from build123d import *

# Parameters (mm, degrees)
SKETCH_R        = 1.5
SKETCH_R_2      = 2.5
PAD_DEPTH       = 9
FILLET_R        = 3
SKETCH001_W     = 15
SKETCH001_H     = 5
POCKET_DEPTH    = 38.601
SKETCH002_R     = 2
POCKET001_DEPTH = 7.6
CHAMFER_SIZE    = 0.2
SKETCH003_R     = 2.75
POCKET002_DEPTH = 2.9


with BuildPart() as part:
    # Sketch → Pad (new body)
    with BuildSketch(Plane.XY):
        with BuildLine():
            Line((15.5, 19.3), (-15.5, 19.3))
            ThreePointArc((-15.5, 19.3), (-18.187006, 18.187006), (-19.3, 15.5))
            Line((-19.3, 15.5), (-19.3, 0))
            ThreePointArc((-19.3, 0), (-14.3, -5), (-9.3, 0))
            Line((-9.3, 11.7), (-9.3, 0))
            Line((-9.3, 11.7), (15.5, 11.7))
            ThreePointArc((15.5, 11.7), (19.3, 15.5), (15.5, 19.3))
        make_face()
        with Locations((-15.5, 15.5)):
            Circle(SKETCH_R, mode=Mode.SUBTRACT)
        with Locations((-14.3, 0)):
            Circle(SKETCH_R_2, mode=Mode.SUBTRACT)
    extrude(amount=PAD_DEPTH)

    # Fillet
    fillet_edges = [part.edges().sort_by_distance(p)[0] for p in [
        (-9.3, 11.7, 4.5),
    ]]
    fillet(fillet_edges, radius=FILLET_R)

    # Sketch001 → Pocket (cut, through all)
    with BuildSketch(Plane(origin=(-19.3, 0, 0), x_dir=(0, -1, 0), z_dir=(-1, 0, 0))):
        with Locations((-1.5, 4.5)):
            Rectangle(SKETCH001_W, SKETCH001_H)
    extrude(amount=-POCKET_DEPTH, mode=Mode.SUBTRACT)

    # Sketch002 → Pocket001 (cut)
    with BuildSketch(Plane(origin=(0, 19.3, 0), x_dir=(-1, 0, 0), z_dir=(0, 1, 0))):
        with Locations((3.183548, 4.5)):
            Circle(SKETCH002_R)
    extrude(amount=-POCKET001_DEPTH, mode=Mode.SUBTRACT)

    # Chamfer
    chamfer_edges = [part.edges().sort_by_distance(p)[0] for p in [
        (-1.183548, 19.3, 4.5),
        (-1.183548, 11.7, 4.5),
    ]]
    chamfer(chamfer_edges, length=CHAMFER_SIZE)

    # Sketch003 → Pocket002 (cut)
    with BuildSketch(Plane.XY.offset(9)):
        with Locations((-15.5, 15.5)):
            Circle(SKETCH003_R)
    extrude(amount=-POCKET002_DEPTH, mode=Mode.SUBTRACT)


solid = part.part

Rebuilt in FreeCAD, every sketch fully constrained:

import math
import FreeCAD as App
import Part
import Sketcher


def edges_at(feature, points):
    """Names of the edges that pass closest to the given points."""
    edges = feature.Shape.Edges
    near = lambda p: min(range(len(edges)), key=lambda i: edges[i].distToShape(Part.Vertex(*p))[0])
    return sorted({f"Edge{near(p) + 1}" for p in points})

doc = App.newDocument("Part")
body = doc.addObject("PartDesign::Body", "Body")

sketch1 = body.newObject("Sketcher::SketchObject", "Sketch")
sketch1.AttachmentSupport = (doc.getObject("XY_Plane"), [""])
sketch1.MapMode = "FlatFace"
sketch1.addGeometry([
    Part.LineSegment(App.Vector(15.5, 19.3, 0), App.Vector(-15.5, 19.3, 0)),
    Part.ArcOfCircle(Part.Circle(App.Vector(-15.5, 15.5, 0), App.Vector(0, 0, 1), 3.8), math.radians(90), math.radians(180)),
    Part.LineSegment(App.Vector(-19.3, 15.5, 0), App.Vector(-19.3, 0, 0)),
    Part.ArcOfCircle(Part.Circle(App.Vector(-14.3, 0, 0), App.Vector(0, 0, 1), 5), math.radians(180), math.radians(360)),
    Part.LineSegment(App.Vector(-9.3, 0, 0), App.Vector(-9.3, 11.7, 0)),
    Part.LineSegment(App.Vector(-9.3, 11.7, 0), App.Vector(15.5, 11.7, 0)),
    Part.ArcOfCircle(Part.Circle(App.Vector(15.5, 15.5, 0), App.Vector(0, 0, 1), 3.8), math.radians(-90), math.radians(90)),
    Part.Circle(App.Vector(-14.3, 0, 0), App.Vector(0, 0, 1), 2.5),
    Part.Circle(App.Vector(-15.5, 15.5, 0), App.Vector(0, 0, 1), 1.5),
], False)
sketch1.addConstraint([
    Sketcher.Constraint("Tangent", 0, 2, 1, 1),
    Sketcher.Constraint("Tangent", 1, 2, 2, 1),
    Sketcher.Constraint("Tangent", 2, 2, 3, 1),
    Sketcher.Constraint("Tangent", 3, 2, 4, 1),
    Sketcher.Constraint("Coincident", 4, 2, 5, 1),
    Sketcher.Constraint("Tangent", 5, 2, 6, 1),
    Sketcher.Constraint("Tangent", 6, 2, 0, 1),
    Sketcher.Constraint("Horizontal", 0),
    Sketcher.Constraint("Vertical", 2),
    Sketcher.Constraint("Vertical", 4),
    Sketcher.Constraint("Horizontal", 5),
    Sketcher.Constraint("Coincident", 7, 3, 3, 3),
    Sketcher.Constraint("Coincident", 8, 3, 1, 3),
    Sketcher.Constraint("Equal", 1, 6),
    Sketcher.Constraint("PointOnObject", 3, 3, -1),
    Sketcher.Constraint("Diameter", 7, 5.0),
    Sketcher.Constraint("Diameter", 8, 3.0),
    Sketcher.Constraint("Radius", 3, 5.0),
    Sketcher.Constraint("Radius", 1, 3.799999),
    Sketcher.Constraint("DistanceX", 0, 2, 0, 1, 31.0),
    Sketcher.Constraint("DistanceY", 2, 2, 2, 1, 15.5),
    Sketcher.Constraint("DistanceX", 1, 3, -1, 1, 15.500001),
])
pad1 = body.newObject("PartDesign::Pad", "Pad")
pad1.Profile = sketch1
pad1.Length = 9
doc.recompute()

fillet = body.newObject("PartDesign::Fillet", "Fillet")
fillet.Base = (pad1, edges_at(pad1, [(-9.3, 11.7, 4.5)]))
fillet.Radius = 3

sketch2 = body.newObject("Sketcher::SketchObject", "Sketch001")
sketch2.AttachmentSupport = (doc.getObject("YZ_Plane"), [""])
sketch2.MapMode = "FlatFace"
sketch2.AttachmentOffset = App.Placement(App.Vector(0, 0, -19.3), App.Rotation())
sketch2.addGeometry([
    Part.LineSegment(App.Vector(9, 7, 0), App.Vector(9, 2, 0)),
    Part.LineSegment(App.Vector(9, 2, 0), App.Vector(-6, 2, 0)),
    Part.LineSegment(App.Vector(-6, 2, 0), App.Vector(-6, 7, 0)),
    Part.LineSegment(App.Vector(-6, 7, 0), App.Vector(9, 7, 0)),
], False)
sketch2.addConstraint([
    Sketcher.Constraint("Coincident", 0, 2, 1, 1),
    Sketcher.Constraint("Coincident", 1, 2, 2, 1),
    Sketcher.Constraint("Coincident", 2, 2, 3, 1),
    Sketcher.Constraint("Coincident", 3, 2, 0, 1),
    Sketcher.Constraint("Vertical", 0),
    Sketcher.Constraint("Horizontal", 1),
    Sketcher.Constraint("Vertical", 2),
    Sketcher.Constraint("Horizontal", 3),
    Sketcher.Constraint("DistanceX", 1, 2, 1, 1, 15.0),
    Sketcher.Constraint("DistanceY", 0, 2, 0, 1, 5.0),
    Sketcher.Constraint("DistanceX", -1, 1, 0, 2, 9.0),
    Sketcher.Constraint("DistanceY", -1, 1, 0, 2, 2.0),
])
pocket1 = body.newObject("PartDesign::Pocket", "Pocket")
pocket1.Profile = sketch2
pocket1.Type = "ThroughAll"
pocket1.Reversed = True

sketch3 = body.newObject("Sketcher::SketchObject", "Sketch002")
sketch3.AttachmentSupport = (doc.getObject("XZ_Plane"), [""])
sketch3.MapMode = "FlatFace"
sketch3.AttachmentOffset = App.Placement(App.Vector(0, 0, -19.3), App.Rotation())
sketch3.addGeometry(Part.Circle(App.Vector(-3.2, 4.5, 0), App.Vector(0, 0, 1), 2), False)
sketch3.addConstraint([
    Sketcher.Constraint("Diameter", 0, 4.0),
    Sketcher.Constraint("DistanceY", -1, 1, 0, 3, 4.5),
    Sketcher.Constraint("DistanceX", 0, 3, -1, 1, 3.183548),
])
pocket2 = body.newObject("PartDesign::Pocket", "Pocket001")
pocket2.Profile = sketch3
pocket2.Length = 7.6
pocket2.Reversed = True
doc.recompute()

chamfer = body.newObject("PartDesign::Chamfer", "Chamfer")
chamfer.Base = (pocket2, edges_at(pocket2, [(-1.184, 19.3, 4.5), (-1.184, 11.7, 4.5)]))
chamfer.Size = 0.2

sketch4 = body.newObject("Sketcher::SketchObject", "Sketch003")
sketch4.AttachmentSupport = (doc.getObject("XY_Plane"), [""])
sketch4.MapMode = "FlatFace"
sketch4.AttachmentOffset = App.Placement(App.Vector(0, 0, 9), App.Rotation())
sketch4.addGeometry(Part.Circle(App.Vector(-15.5, 15.5, 0), App.Vector(0, 0, 1), 2.8), False)
sketch4.addConstraint([
    Sketcher.Constraint("Diameter", 0, 5.5),
    Sketcher.Constraint("DistanceX", 0, 3, -1, 1, 15.5),
    Sketcher.Constraint("DistanceY", -1, 1, 0, 3, 15.5),
])
pocket3 = body.newObject("PartDesign::Pocket", "Pocket002")
pocket3.Profile = sketch4
pocket3.Length = 2.9

doc.recompute()
